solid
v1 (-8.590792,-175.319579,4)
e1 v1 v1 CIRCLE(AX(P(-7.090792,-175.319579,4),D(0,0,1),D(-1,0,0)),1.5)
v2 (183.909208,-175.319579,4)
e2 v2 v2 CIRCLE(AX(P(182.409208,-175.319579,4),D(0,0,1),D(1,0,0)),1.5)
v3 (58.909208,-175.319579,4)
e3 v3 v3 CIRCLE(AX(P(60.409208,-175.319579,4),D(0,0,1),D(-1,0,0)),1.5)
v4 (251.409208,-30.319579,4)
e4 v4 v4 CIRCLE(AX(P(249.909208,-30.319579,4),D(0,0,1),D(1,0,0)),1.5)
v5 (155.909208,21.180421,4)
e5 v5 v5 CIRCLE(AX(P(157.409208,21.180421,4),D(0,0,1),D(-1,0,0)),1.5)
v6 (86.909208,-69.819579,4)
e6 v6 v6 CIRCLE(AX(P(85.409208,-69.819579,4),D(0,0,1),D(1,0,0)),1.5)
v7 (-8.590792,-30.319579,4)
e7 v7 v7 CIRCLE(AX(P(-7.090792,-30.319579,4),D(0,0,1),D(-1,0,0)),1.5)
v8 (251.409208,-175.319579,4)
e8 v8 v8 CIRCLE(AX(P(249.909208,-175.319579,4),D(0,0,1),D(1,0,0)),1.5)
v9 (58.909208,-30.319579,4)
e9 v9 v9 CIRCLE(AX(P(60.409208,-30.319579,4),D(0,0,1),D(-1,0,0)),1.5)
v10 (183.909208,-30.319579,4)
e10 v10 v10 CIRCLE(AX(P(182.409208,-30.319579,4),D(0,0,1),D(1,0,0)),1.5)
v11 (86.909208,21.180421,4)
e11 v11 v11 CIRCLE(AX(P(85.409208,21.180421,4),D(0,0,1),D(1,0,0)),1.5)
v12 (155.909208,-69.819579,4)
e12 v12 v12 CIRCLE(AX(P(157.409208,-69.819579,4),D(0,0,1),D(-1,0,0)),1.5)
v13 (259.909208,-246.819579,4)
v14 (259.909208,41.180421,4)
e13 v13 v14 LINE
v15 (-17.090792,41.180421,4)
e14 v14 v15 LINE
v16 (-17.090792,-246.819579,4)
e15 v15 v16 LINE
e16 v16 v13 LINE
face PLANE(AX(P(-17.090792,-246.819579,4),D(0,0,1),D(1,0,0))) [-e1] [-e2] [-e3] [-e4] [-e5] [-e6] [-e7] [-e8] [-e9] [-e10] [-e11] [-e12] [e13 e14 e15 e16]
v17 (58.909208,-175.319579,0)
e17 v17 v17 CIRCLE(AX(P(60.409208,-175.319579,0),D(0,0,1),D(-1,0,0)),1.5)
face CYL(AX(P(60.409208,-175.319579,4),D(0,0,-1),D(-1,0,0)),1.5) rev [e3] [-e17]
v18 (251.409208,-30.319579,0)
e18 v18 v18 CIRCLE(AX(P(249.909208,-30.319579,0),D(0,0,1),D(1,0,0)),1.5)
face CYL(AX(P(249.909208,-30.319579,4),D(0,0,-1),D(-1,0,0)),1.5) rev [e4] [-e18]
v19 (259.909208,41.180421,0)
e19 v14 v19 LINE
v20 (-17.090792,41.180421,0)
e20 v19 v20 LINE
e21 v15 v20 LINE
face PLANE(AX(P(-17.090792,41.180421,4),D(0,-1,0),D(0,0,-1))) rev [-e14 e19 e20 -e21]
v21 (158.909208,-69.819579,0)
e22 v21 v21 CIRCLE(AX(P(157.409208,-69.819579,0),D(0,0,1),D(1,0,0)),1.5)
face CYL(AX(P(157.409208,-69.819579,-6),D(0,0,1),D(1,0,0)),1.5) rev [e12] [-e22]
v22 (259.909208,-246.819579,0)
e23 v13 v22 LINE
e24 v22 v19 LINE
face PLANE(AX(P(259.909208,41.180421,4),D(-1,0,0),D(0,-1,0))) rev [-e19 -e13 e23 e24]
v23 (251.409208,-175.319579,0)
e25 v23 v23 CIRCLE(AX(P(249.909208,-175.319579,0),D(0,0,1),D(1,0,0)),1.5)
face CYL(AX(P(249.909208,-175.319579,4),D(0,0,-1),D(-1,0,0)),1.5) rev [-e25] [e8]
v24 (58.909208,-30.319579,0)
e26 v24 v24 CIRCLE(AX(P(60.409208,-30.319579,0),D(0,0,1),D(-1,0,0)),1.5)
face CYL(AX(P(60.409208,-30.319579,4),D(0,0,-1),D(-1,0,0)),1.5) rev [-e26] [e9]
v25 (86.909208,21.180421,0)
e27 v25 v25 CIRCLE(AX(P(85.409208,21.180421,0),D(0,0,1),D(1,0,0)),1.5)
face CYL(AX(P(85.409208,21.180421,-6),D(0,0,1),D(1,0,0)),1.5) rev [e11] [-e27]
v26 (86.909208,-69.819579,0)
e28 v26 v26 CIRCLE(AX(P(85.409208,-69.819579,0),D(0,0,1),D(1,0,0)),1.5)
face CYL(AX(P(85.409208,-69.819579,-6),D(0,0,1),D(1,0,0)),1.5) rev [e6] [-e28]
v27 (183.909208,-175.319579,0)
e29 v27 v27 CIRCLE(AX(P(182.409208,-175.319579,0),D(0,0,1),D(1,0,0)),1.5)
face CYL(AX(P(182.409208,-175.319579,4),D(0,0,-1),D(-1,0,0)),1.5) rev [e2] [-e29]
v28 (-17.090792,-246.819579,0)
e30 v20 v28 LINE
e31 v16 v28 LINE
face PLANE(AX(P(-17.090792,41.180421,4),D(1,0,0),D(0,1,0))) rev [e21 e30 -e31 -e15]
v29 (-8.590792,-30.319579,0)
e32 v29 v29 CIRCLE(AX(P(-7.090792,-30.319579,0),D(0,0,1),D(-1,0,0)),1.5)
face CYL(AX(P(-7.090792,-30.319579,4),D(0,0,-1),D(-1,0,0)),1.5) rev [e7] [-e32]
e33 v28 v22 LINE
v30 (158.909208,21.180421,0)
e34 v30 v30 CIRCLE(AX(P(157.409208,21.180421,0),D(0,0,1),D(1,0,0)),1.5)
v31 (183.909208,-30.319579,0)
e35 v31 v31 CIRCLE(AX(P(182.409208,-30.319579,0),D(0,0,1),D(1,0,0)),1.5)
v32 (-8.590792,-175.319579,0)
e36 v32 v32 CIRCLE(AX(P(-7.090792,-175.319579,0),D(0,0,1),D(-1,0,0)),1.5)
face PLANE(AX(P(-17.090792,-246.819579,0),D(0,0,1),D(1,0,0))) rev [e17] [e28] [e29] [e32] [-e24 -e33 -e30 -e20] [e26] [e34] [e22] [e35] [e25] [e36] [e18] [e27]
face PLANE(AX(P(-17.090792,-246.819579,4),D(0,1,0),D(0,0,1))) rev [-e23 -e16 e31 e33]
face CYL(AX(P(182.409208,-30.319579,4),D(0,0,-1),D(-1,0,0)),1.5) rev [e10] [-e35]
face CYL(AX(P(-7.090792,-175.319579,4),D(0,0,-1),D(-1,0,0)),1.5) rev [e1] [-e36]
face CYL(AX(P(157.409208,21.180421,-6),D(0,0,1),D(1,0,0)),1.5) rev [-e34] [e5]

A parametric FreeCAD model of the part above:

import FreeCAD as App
import Part
import Sketcher
from FreeCAD import Vector

doc = App.newDocument("Part")
body = doc.addObject("PartDesign::Body", "Body")

sketch1 = body.newObject("Sketcher::SketchObject", "Sketch")
sketch1.AttachmentSupport = (doc.getObject("XY_Plane"), [""])
sketch1.MapMode = "FlatFace"
sketch1.addGeometry(Part.LineSegment(Vector(-17.090792, 41.180421, 0), Vector(-17.090792, -246.819579, 0)), False)
sketch1.addGeometry(Part.LineSegment(Vector(-17.090792, -246.819579, 0), Vector(259.909208, -246.819579, 0)), False)
sketch1.addGeometry(Part.LineSegment(Vector(259.909208, -246.819579, 0), Vector(259.909208, 41.180421, 0)), False)
sketch1.addGeometry(Part.LineSegment(Vector(259.909208, 41.180421, 0), Vector(-17.090792, 41.180421, 0)), False)
sketch1.addGeometry(Part.Circle(Vector(-7.090792, -175.319579, 0), Vector(0, 0, 1), 1.5), False)
sketch1.addGeometry(Part.Circle(Vector(60.409208, -175.319579, 0), Vector(0, 0, 1), 1.5), False)
sketch1.addGeometry(Part.Circle(Vector(182.409208, -175.319579, 0), Vector(0, 0, 1), 1.5), False)
sketch1.addGeometry(Part.Circle(Vector(249.909208, -175.319579, 0), Vector(0, 0, 1), 1.5), False)
sketch1.addGeometry(Part.Circle(Vector(-7.090792, -30.319579, 0), Vector(0, 0, 1), 1.5), False)
sketch1.addGeometry(Part.Circle(Vector(60.409208, -30.319579, 0), Vector(0, 0, 1), 1.5), False)
sketch1.addGeometry(Part.Circle(Vector(182.409208, -30.319579, 0), Vector(0, 0, 1), 1.5), False)
sketch1.addGeometry(Part.Circle(Vector(249.909208, -30.319579, 0), Vector(0, 0, 1), 1.5), False)
sketch1.addConstraint(Sketcher.Constraint("Coincident", 0, 2, 1, 1))
sketch1.addConstraint(Sketcher.Constraint("Coincident", 1, 2, 2, 1))
sketch1.addConstraint(Sketcher.Constraint("Coincident", 2, 2, 3, 1))
sketch1.addConstraint(Sketcher.Constraint("Coincident", 3, 2, 0, 1))
sketch1.addConstraint(Sketcher.Constraint("Vertical", 0))
sketch1.addConstraint(Sketcher.Constraint("Horizontal", 1))
sketch1.addConstraint(Sketcher.Constraint("Vertical", 2))
sketch1.addConstraint(Sketcher.Constraint("Horizontal", 3))
sketch1.addConstraint(Sketcher.Constraint("Equal", 4, 5))
sketch1.addConstraint(Sketcher.Constraint("Equal", 5, 6))
sketch1.addConstraint(Sketcher.Constraint("Equal", 6, 7))
sketch1.addConstraint(Sketcher.Constraint("Equal", 7, 8))
sketch1.addConstraint(Sketcher.Constraint("Equal", 8, 9))
sketch1.addConstraint(Sketcher.Constraint("Equal", 9, 10))
sketch1.addConstraint(Sketcher.Constraint("Equal", 10, 11))
sketch1.addConstraint(Sketcher.Constraint("Horizontal", 4, 3, 5, 3))
sketch1.addConstraint(Sketcher.Constraint("Horizontal", 5, 3, 6, 3))
sketch1.addConstraint(Sketcher.Constraint("Horizontal", 6, 3, 7, 3))
sketch1.addConstraint(Sketcher.Constraint("Horizontal", 8, 3, 9, 3))
sketch1.addConstraint(Sketcher.Constraint("Horizontal", 9, 3, 10, 3))
sketch1.addConstraint(Sketcher.Constraint("Horizontal", 10, 3, 11, 3))
sketch1.addConstraint(Sketcher.Constraint("Vertical", 4, 3, 8, 3))
sketch1.addConstraint(Sketcher.Constraint("Vertical", 5, 3, 9, 3))
sketch1.addConstraint(Sketcher.Constraint("Vertical", 6, 3, 10, 3))
sketch1.addConstraint(Sketcher.Constraint("Vertical", 7, 3, 11, 3))
sketch1.addConstraint(Sketcher.Constraint("Diameter", 4, 3.0))
sketch1.addConstraint(Sketcher.Constraint("DistanceX", 1, 1, 1, 2, 277.0))
sketch1.addConstraint(Sketcher.Constraint("DistanceY", 0, 2, 0, 1, 288.0))
sketch1.addConstraint(Sketcher.Constraint("DistanceX", 5, 3, 6, 3, 122.0))
sketch1.addConstraint(Sketcher.Constraint("DistanceX", 4, 3, 7, 3, 257.0))
sketch1.addConstraint(Sketcher.Constraint("DistanceY", 4, 3, 8, 3, 145.0))
sketch1.addConstraint(Sketcher.Constraint("DistanceX", 0, 2, 4, 3, 10.0))
sketch1.addConstraint(Sketcher.Constraint("DistanceX", 4, 3, 5, 3, 67.5))
sketch1.addConstraint(Sketcher.Constraint("DistanceY", 0, 2, 4, 3, 71.5))
sketch1.addConstraint(Sketcher.Constraint("DistanceX", 4, 3, -1, 1, 7.090792))
sketch1.addConstraint(Sketcher.Constraint("DistanceY", 4, 3, -1, 1, 175.319579))
pad1 = body.newObject("PartDesign::Pad", "Pad")
pad1.Profile = sketch1
pad1.Length = 4

sketch2 = body.newObject("Sketcher::SketchObject", "Sketch001")
sketch2.AttachmentSupport = (doc.getObject("XY_Plane"), [""])
sketch2.MapMode = "FlatFace"
sketch2.AttachmentOffset = App.Placement(Vector(0, 0, 4), App.Rotation())
sketch2.addGeometry(Part.Circle(Vector(85.409208, 21.180421, 0), Vector(0, 0, 1), 1.5), False)
sketch2.addGeometry(Part.Circle(Vector(85.409208, -69.819579, 0), Vector(0, 0, 1), 1.5), False)
sketch2.addGeometry(Part.Circle(Vector(157.409208, -69.819579, 0), Vector(0, 0, 1), 1.5), False)
sketch2.addGeometry(Part.Circle(Vector(157.409208, 21.180421, 0), Vector(0, 0, 1), 1.5), False)
sketch2.addConstraint(Sketcher.Constraint("Equal", 0, 1))
sketch2.addConstraint(Sketcher.Constraint("Equal", 1, 2))
sketch2.addConstraint(Sketcher.Constraint("Equal", 2, 3))
sketch2.addConstraint(Sketcher.Constraint("Horizontal", 1, 3, 2, 3))
sketch2.addConstraint(Sketcher.Constraint("Horizontal", 0, 3, 3, 3))
sketch2.addConstraint(Sketcher.Constraint("Vertical", 0, 3, 1, 3))
sketch2.addConstraint(Sketcher.Constraint("Vertical", 2, 3, 3, 3))
sketch2.addConstraint(Sketcher.Constraint("Diameter", 0, 3.0))
sketch2.addConstraint(Sketcher.Constraint("DistanceY", 1, 3, 0, 3, 91.0))
sketch2.addConstraint(Sketcher.Constraint("DistanceX", 1, 3, 2, 3, 72.0))
sketch2.addConstraint(Sketcher.Constraint("DistanceX", -1, 1, 0, 3, 85.409208))
sketch2.addConstraint(Sketcher.Constraint("DistanceY", -1, 1, 0, 3, 21.180421))
pocket1 = body.newObject("PartDesign::Pocket", "Pocket")
pocket1.Profile = sketch2
pocket1.Length = 10

doc.recompute()
